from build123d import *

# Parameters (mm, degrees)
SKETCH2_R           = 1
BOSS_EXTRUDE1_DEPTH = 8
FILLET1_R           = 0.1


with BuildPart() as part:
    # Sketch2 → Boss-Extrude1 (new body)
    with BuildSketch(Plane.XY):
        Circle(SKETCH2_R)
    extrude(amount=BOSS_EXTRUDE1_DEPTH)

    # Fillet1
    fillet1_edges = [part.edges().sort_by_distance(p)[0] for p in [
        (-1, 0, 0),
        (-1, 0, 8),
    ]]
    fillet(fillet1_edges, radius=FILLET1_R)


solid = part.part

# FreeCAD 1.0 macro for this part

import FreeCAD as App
import Part
import Sketcher
from FreeCAD import Vector


def edges_at(feature, points):
    """Names of the edges that pass closest to the given points."""
    edges = feature.Shape.Edges
    near = lambda p: min(range(len(edges)), key=lambda i: edges[i].distToShape(Part.Vertex(*p))[0])
    return sorted({f"Edge{near(p) + 1}" for p in points})

doc = App.newDocument("Part")
params = doc.addObject("Spreadsheet::Sheet", "Params")
for row, (alias, value) in enumerate([
    ("sketch1_diameter", "2 mm"),
    ("pad1_length", "8 mm"),
    ("fillet_radius", "0.1 mm"),
], start=1):
    params.set(f"A{row}", alias)
    params.set(f"B{row}", "=" + value)
    params.setAlias(f"B{row}", alias)

body = doc.addObject("PartDesign::Body", "Body")

# Sketch on XY plane
sketch1 = body.newObject("Sketcher::SketchObject", "Sketch")
sketch1.AttachmentSupport = (doc.getObject("XY_Plane"), [""])
sketch1.MapMode = "FlatFace"
sketch1.addGeometry(Part.Circle(Vector(0, 0, 0), Vector(0, 0, 1), 1), False)
sketch1.addConstraint([
    Sketcher.Constraint("Coincident", 0, 3, -1, 1),
    Sketcher.Constraint("Diameter", 0, 2.0),
])
sketch1.setExpression("Constraints[1]", "Params.sketch1_diameter")
pad1 = body.newObject("PartDesign::Pad", "Pad")
pad1.Profile = sketch1
pad1.setExpression("Length", "Params.pad1_length")
doc.recompute()

fillet = body.newObject("PartDesign::Fillet", "Fillet")
fillet.Base = (pad1, edges_at(pad1, [(-1, 0, 0), (-1, 0, 8)]))
fillet.setExpression("Radius", "Params.fillet_radius")

doc.recompute()
